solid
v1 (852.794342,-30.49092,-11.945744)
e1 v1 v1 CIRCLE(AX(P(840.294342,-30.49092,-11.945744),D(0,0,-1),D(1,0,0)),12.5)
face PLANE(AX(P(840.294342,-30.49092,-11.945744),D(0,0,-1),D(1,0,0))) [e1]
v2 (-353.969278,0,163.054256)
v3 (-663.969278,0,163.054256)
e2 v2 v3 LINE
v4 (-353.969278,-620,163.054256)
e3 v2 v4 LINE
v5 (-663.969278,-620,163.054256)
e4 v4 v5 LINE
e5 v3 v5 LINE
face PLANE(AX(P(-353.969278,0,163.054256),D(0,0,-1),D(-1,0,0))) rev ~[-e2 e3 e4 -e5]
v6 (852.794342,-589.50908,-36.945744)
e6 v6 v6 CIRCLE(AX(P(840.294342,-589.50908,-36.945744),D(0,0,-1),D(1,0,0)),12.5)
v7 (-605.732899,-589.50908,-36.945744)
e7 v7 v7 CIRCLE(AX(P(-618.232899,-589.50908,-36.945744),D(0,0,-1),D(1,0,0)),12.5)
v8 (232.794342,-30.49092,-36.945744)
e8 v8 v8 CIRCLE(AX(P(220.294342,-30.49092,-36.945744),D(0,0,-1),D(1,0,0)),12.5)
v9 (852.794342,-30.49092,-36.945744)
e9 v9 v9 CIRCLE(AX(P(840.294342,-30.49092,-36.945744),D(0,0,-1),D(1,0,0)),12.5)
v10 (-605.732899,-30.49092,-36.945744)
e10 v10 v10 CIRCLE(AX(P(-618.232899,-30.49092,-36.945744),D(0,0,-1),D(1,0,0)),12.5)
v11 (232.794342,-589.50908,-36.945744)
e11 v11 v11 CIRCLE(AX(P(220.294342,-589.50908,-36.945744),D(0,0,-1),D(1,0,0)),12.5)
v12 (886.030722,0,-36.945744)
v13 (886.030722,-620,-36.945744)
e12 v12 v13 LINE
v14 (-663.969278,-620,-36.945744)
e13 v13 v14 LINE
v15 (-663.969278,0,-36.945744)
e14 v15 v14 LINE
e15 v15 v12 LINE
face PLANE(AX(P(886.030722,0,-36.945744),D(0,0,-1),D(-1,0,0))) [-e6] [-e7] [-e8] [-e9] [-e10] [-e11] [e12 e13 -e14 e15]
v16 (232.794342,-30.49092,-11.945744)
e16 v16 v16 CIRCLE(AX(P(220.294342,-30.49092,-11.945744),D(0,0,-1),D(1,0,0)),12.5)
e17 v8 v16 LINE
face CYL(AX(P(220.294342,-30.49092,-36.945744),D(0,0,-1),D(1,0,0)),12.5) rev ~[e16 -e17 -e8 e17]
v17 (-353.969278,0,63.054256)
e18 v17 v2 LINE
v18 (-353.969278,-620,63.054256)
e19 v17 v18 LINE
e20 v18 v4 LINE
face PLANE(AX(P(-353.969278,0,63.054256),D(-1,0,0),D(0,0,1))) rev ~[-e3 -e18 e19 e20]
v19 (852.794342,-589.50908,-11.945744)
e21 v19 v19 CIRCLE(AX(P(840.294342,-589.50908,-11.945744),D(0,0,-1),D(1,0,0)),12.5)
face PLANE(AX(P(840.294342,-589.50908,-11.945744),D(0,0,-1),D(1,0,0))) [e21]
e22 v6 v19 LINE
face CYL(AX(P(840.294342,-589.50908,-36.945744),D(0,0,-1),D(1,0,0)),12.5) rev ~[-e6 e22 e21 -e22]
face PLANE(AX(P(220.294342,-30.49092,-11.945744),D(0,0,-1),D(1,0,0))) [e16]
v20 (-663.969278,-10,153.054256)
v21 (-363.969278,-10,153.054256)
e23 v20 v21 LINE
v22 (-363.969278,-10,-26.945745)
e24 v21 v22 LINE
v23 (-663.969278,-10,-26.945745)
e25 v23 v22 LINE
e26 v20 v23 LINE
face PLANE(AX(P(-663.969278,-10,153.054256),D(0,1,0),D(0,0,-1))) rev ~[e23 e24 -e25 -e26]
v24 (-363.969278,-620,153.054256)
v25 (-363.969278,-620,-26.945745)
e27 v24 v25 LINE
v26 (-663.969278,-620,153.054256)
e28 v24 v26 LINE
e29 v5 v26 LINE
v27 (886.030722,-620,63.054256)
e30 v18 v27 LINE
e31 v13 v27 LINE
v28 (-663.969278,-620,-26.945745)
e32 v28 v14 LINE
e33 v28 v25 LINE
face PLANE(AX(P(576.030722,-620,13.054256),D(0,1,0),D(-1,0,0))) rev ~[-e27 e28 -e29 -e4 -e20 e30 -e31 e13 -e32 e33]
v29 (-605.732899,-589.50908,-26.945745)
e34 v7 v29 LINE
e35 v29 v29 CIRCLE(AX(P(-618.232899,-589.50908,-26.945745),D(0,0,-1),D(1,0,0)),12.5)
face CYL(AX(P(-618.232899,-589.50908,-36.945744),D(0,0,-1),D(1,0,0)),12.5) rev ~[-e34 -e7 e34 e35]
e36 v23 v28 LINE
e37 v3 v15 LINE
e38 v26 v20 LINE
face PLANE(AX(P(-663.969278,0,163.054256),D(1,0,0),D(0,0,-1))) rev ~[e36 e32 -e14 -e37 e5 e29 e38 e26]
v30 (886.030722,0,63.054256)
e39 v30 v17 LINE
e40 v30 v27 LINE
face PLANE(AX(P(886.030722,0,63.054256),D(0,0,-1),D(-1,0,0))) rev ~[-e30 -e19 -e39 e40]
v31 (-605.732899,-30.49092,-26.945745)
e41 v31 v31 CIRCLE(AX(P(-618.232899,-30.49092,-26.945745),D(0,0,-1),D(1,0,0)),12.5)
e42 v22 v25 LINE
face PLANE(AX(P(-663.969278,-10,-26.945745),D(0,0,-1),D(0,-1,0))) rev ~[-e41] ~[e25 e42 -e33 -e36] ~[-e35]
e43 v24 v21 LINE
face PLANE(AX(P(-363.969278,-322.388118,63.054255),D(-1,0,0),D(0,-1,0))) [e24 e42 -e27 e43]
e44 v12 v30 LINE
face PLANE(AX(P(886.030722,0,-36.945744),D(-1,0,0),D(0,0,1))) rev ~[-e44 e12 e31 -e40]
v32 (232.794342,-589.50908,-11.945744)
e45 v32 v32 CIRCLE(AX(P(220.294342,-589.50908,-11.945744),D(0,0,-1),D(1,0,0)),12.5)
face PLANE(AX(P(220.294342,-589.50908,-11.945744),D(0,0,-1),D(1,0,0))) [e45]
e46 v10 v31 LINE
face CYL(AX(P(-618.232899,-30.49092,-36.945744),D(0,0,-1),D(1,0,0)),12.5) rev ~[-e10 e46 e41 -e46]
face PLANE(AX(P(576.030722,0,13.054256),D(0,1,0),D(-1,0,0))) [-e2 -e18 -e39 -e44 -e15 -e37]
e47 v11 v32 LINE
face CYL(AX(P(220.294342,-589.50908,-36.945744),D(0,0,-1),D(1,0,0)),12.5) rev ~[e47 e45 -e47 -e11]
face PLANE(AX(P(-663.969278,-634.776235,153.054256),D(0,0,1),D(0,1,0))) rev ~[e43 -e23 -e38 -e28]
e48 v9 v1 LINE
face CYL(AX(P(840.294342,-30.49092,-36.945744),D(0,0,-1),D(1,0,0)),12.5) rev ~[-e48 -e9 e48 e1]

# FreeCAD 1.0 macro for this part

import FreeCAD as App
import Part
import Sketcher
Q = App.Units.Quantity

doc = App.newDocument("Part")
body = doc.addObject("PartDesign::Body", "Body")

sketch1 = doc.addObject("Sketcher::SketchObject", "Sketch")
body.addObject(sketch1)
sketch1.AttachmentSupport = (doc.XZ_Plane, [""])
sketch1.MapMode = "FlatFace"
sketch1.addGeometry(Part.LineSegment(App.Vector(266.030722, -36.945744, 0), App.Vector(266.030722, 63.054256, 0)), False)
sketch1.addGeometry(Part.LineSegment(App.Vector(266.030722, 63.054256, 0), App.Vector(-353.969278, 63.054256, 0)), False)
sketch1.addGeometry(Part.LineSegment(App.Vector(-353.969278, 63.054256, 0), App.Vector(-353.969278, 163.054256, 0)), False)
sketch1.addGeometry(Part.LineSegment(App.Vector(-353.969278, 163.054256, 0), App.Vector(-663.969278, 163.054256, 0)), False)
sketch1.addGeometry(Part.LineSegment(App.Vector(-663.969278, 163.054256, 0), App.Vector(-663.969278, -36.945744, 0)), False)
sketch1.addGeometry(Part.LineSegment(App.Vector(-663.969278, -36.945744, 0), App.Vector(266.030722, -36.945744, 0)), False)
sketch1.addConstraint(Sketcher.Constraint("Coincident", 0, 2, 1, 1))
sketch1.addConstraint(Sketcher.Constraint("Coincident", 1, 2, 2, 1))
sketch1.addConstraint(Sketcher.Constraint("Coincident", 2, 2, 3, 1))
sketch1.addConstraint(Sketcher.Constraint("Coincident", 3, 2, 4, 1))
sketch1.addConstraint(Sketcher.Constraint("Coincident", 4, 2, 5, 1))
sketch1.addConstraint(Sketcher.Constraint("Coincident", 5, 2, 0, 1))
sketch1.addConstraint(Sketcher.Constraint("Vertical", 0))
sketch1.addConstraint(Sketcher.Constraint("Horizontal", 1))
sketch1.addConstraint(Sketcher.Constraint("Vertical", 2))
sketch1.addConstraint(Sketcher.Constraint("Horizontal", 3))
sketch1.addConstraint(Sketcher.Constraint("Vertical", 4))
sketch1.addConstraint(Sketcher.Constraint("Horizontal", 5))
sketch1.addConstraint(Sketcher.Constraint("Equal", 0, 2))
sketch1.addConstraint(Sketcher.Constraint("DistanceX", 1, 2, 1, 1, Q("620 mm")))
sketch1.addConstraint(Sketcher.Constraint("DistanceX", 3, 2, 3, 1, Q("310 mm")))
sketch1.addConstraint(Sketcher.Constraint("DistanceY", 0, 1, 0, 2, Q("100 mm")))
sketch1.addConstraint(Sketcher.Constraint("DistanceX", 3, 2, -1, 1, Q("663.969278 mm")))
sketch1.addConstraint(Sketcher.Constraint("DistanceY", -1, 1, 0, 2, Q("63.054256 mm")))
pad1 = doc.addObject("PartDesign::Pad", "Pad")
body.addObject(pad1)
pad1.Profile = sketch1
pad1.Length = 620

sketch2 = doc.addObject("Sketcher::SketchObject", "Sketch001")
body.addObject(sketch2)
sketch2.AttachmentSupport = (doc.XY_Plane, [""])
sketch2.MapMode = "FlatFace"
sketch2.AttachmentOffset = App.Placement(App.Vector(0, 0, -36.945744), App.Rotation())
sketch2.addGeometry(Part.Circle(App.Vector(-618.232899, -589.50908, 0), App.Vector(0, 0, 1), 12.5), False)
sketch2.addGeometry(Part.Circle(App.Vector(-618.232899, -30.49092, 0), App.Vector(0, 0, 1), 12.5), False)
sketch2.addGeometry(Part.Circle(App.Vector(220.294342, -589.50908, 0), App.Vector(0, 0, 1), 12.5), False)
sketch2.addGeometry(Part.Circle(App.Vector(220.294342, -30.49092, 0), App.Vector(0, 0, 1), 12.5), False)
sketch2.addConstraint(Sketcher.Constraint("Equal", 0, 1))
sketch2.addConstraint(Sketcher.Constraint("Equal", 1, 2))
sketch2.addConstraint(Sketcher.Constraint("Equal", 2, 3))
sketch2.addConstraint(Sketcher.Constraint("Horizontal", 0, 3, 2, 3))
sketch2.addConstraint(Sketcher.Constraint("Horizontal", 1, 3, 3, 3))
sketch2.addConstraint(Sketcher.Constraint("Vertical", 0, 3, 1, 3))
sketch2.addConstraint(Sketcher.Constraint("Vertical", 2, 3, 3, 3))
sketch2.addConstraint(Sketcher.Constraint("Diameter", 0, Q("25 mm")))
sketch2.addConstraint(Sketcher.Constraint("DistanceX", 0, 3, -1, 1, Q("618.232899 mm")))
sketch2.addConstraint(Sketcher.Constraint("DistanceY", 0, 3, -1, 1, Q("589.50908 mm")))
sketch2.addConstraint(Sketcher.Constraint("DistanceY", 1, 3, -1, 1, Q("30.49092 mm")))
sketch2.addConstraint(Sketcher.Constraint("DistanceX", -1, 1, 2, 3, Q("220.294342 mm")))
pocket1 = doc.addObject("PartDesign::Pocket", "Pocket")
body.addObject(pocket1)
pocket1.Profile = sketch2
pocket1.Length = 25
pocket1.Reversed = True

sketch3 = doc.addObject("Sketcher::SketchObject", "Sketch002")
body.addObject(sketch3)
sketch3.AttachmentSupport = (doc.YZ_Plane, [""])
sketch3.MapMode = "FlatFace"
sketch3.AttachmentOffset = App.Placement(App.Vector(0, 0, -663.969278), App.Rotation())
sketch3.addGeometry(Part.LineSegment(App.Vector(-634.776235, 153.054256, 0), App.Vector(-10, 153.054256, 0)), False)
sketch3.addGeometry(Part.LineSegment(App.Vector(-10, 153.054256, 0), App.Vector(-10, -26.945745, 0)), False)
sketch3.addGeometry(Part.LineSegment(App.Vector(-10, -26.945745, 0), App.Vector(-634.776235, -26.945745, 0)), False)
sketch3.addGeometry(Part.LineSegment(App.Vector(-634.776235, -26.945745, 0), App.Vector(-634.776235, 153.054256, 0)), False)
sketch3.addConstraint(Sketcher.Constraint("Coincident", 0, 2, 1, 1))
sketch3.addConstraint(Sketcher.Constraint("Coincident", 1, 2, 2, 1))
sketch3.addConstraint(Sketcher.Constraint("Coincident", 2, 2, 3, 1))
sketch3.addConstraint(Sketcher.Constraint("Coincident", 3, 2, 0, 1))
sketch3.addConstraint(Sketcher.Constraint("Horizontal", 0))
sketch3.addConstraint(Sketcher.Constraint("Vertical", 1))
sketch3.addConstraint(Sketcher.Constraint("Horizontal", 2))
sketch3.addConstraint(Sketcher.Constraint("Vertical", 3))
sketch3.addConstraint(Sketcher.Constraint("DistanceY", 1, 2, 1, 1, Q("180.000001 mm")))
sketch3.addConstraint(Sketcher.Constraint("DistanceX", 0, 2, -1, 1, Q("10 mm")))
sketch3.addConstraint(Sketcher.Constraint("DistanceX", 0, 1, 0, 2, Q("624.776235 mm")))
sketch3.addConstraint(Sketcher.Constraint("DistanceY", -1, 1, 0, 2, Q("153.054256 mm")))
pocket2 = doc.addObject("PartDesign::Pocket", "Pocket001")
body.addObject(pocket2)
pocket2.Profile = sketch3
pocket2.Length = 300
pocket2.Reversed = True

sketch4 = doc.addObject("Sketcher::SketchObject", "Sketch003")
body.addObject(sketch4)
sketch4.AttachmentSupport = (doc.XZ_Plane, [""])
sketch4.MapMode = "FlatFace"
sketch4.addGeometry(Part.LineSegment(App.Vector(886.030722, 63.054256, 0), App.Vector(886.030722, -36.945744, 0)), False)
sketch4.addGeometry(Part.LineSegment(App.Vector(886.030722, -36.945744, 0), App.Vector(266.030722, -36.945744, 0)), False)
sketch4.addGeometry(Part.LineSegment(App.Vector(266.030722, -36.945744, 0), App.Vector(266.030722, 63.054256, 0)), False)
sketch4.addGeometry(Part.LineSegment(App.Vector(266.030722, 63.054256, 0), App.Vector(886.030722, 63.054256, 0)), False)
sketch4.addConstraint(Sketcher.Constraint("Coincident", 0, 2, 1, 1))
sketch4.addConstraint(Sketcher.Constraint("Coincident", 1, 2, 2, 1))
sketch4.addConstraint(Sketcher.Constraint("Coincident", 2, 2, 3, 1))
sketch4.addConstraint(Sketcher.Constraint("Coincident", 3, 2, 0, 1))
sketch4.addConstraint(Sketcher.Constraint("Vertical", 0))
sketch4.addConstraint(Sketcher.Constraint("Horizontal", 1))
sketch4.addConstraint(Sketcher.Constraint("Vertical", 2))
sketch4.addConstraint(Sketcher.Constraint("Horizontal", 3))
sketch4.addConstraint(Sketcher.Constraint("DistanceX", 1, 2, 1, 1, Q("620 mm")))
sketch4.addConstraint(Sketcher.Constraint("DistanceY", 0, 2, 0, 1, Q("100 mm")))
sketch4.addConstraint(Sketcher.Constraint("DistanceX", -1, 1, 0, 2, Q("886.030722 mm")))
sketch4.addConstraint(Sketcher.Constraint("DistanceY", 0, 2, -1, 1, Q("36.945744 mm")))
pad2 = doc.addObject("PartDesign::Pad", "Pad001")
body.addObject(pad2)
pad2.Profile = sketch4
pad2.Length = 620

sketch5 = doc.addObject("Sketcher::SketchObject", "Sketch004")
body.addObject(sketch5)
sketch5.AttachmentSupport = (doc.XY_Plane, [""])
sketch5.MapMode = "FlatFace"
sketch5.AttachmentOffset = App.Placement(App.Vector(0, 0, -36.945744), App.Rotation())
sketch5.addGeometry(Part.Circle(App.Vector(840.294342, -589.50908, 0), App.Vector(0, 0, 1), 12.5), False)
sketch5.addGeometry(Part.Circle(App.Vector(840.294342, -30.49092, 0), App.Vector(0, 0, 1), 12.5), False)
sketch5.addConstraint(Sketcher.Constraint("Equal", 0, 1))
sketch5.addConstraint(Sketcher.Constraint("Vertical", 0, 3, 1, 3))
sketch5.addConstraint(Sketcher.Constraint("Diameter", 0, Q("25 mm")))
sketch5.addConstraint(Sketcher.Constraint("DistanceX", -1, 1, 0, 3, Q("840.294342 mm")))
sketch5.addConstraint(Sketcher.Constraint("DistanceY", 0, 3, -1, 1, Q("589.50908 mm")))
sketch5.addConstraint(Sketcher.Constraint("DistanceY", 1, 3, -1, 1, Q("30.49092 mm")))
pocket3 = doc.addObject("PartDesign::Pocket", "Pocket002")
body.addObject(pocket3)
pocket3.Profile = sketch5
pocket3.Length = 25
pocket3.Reversed = True

doc.recompute()
